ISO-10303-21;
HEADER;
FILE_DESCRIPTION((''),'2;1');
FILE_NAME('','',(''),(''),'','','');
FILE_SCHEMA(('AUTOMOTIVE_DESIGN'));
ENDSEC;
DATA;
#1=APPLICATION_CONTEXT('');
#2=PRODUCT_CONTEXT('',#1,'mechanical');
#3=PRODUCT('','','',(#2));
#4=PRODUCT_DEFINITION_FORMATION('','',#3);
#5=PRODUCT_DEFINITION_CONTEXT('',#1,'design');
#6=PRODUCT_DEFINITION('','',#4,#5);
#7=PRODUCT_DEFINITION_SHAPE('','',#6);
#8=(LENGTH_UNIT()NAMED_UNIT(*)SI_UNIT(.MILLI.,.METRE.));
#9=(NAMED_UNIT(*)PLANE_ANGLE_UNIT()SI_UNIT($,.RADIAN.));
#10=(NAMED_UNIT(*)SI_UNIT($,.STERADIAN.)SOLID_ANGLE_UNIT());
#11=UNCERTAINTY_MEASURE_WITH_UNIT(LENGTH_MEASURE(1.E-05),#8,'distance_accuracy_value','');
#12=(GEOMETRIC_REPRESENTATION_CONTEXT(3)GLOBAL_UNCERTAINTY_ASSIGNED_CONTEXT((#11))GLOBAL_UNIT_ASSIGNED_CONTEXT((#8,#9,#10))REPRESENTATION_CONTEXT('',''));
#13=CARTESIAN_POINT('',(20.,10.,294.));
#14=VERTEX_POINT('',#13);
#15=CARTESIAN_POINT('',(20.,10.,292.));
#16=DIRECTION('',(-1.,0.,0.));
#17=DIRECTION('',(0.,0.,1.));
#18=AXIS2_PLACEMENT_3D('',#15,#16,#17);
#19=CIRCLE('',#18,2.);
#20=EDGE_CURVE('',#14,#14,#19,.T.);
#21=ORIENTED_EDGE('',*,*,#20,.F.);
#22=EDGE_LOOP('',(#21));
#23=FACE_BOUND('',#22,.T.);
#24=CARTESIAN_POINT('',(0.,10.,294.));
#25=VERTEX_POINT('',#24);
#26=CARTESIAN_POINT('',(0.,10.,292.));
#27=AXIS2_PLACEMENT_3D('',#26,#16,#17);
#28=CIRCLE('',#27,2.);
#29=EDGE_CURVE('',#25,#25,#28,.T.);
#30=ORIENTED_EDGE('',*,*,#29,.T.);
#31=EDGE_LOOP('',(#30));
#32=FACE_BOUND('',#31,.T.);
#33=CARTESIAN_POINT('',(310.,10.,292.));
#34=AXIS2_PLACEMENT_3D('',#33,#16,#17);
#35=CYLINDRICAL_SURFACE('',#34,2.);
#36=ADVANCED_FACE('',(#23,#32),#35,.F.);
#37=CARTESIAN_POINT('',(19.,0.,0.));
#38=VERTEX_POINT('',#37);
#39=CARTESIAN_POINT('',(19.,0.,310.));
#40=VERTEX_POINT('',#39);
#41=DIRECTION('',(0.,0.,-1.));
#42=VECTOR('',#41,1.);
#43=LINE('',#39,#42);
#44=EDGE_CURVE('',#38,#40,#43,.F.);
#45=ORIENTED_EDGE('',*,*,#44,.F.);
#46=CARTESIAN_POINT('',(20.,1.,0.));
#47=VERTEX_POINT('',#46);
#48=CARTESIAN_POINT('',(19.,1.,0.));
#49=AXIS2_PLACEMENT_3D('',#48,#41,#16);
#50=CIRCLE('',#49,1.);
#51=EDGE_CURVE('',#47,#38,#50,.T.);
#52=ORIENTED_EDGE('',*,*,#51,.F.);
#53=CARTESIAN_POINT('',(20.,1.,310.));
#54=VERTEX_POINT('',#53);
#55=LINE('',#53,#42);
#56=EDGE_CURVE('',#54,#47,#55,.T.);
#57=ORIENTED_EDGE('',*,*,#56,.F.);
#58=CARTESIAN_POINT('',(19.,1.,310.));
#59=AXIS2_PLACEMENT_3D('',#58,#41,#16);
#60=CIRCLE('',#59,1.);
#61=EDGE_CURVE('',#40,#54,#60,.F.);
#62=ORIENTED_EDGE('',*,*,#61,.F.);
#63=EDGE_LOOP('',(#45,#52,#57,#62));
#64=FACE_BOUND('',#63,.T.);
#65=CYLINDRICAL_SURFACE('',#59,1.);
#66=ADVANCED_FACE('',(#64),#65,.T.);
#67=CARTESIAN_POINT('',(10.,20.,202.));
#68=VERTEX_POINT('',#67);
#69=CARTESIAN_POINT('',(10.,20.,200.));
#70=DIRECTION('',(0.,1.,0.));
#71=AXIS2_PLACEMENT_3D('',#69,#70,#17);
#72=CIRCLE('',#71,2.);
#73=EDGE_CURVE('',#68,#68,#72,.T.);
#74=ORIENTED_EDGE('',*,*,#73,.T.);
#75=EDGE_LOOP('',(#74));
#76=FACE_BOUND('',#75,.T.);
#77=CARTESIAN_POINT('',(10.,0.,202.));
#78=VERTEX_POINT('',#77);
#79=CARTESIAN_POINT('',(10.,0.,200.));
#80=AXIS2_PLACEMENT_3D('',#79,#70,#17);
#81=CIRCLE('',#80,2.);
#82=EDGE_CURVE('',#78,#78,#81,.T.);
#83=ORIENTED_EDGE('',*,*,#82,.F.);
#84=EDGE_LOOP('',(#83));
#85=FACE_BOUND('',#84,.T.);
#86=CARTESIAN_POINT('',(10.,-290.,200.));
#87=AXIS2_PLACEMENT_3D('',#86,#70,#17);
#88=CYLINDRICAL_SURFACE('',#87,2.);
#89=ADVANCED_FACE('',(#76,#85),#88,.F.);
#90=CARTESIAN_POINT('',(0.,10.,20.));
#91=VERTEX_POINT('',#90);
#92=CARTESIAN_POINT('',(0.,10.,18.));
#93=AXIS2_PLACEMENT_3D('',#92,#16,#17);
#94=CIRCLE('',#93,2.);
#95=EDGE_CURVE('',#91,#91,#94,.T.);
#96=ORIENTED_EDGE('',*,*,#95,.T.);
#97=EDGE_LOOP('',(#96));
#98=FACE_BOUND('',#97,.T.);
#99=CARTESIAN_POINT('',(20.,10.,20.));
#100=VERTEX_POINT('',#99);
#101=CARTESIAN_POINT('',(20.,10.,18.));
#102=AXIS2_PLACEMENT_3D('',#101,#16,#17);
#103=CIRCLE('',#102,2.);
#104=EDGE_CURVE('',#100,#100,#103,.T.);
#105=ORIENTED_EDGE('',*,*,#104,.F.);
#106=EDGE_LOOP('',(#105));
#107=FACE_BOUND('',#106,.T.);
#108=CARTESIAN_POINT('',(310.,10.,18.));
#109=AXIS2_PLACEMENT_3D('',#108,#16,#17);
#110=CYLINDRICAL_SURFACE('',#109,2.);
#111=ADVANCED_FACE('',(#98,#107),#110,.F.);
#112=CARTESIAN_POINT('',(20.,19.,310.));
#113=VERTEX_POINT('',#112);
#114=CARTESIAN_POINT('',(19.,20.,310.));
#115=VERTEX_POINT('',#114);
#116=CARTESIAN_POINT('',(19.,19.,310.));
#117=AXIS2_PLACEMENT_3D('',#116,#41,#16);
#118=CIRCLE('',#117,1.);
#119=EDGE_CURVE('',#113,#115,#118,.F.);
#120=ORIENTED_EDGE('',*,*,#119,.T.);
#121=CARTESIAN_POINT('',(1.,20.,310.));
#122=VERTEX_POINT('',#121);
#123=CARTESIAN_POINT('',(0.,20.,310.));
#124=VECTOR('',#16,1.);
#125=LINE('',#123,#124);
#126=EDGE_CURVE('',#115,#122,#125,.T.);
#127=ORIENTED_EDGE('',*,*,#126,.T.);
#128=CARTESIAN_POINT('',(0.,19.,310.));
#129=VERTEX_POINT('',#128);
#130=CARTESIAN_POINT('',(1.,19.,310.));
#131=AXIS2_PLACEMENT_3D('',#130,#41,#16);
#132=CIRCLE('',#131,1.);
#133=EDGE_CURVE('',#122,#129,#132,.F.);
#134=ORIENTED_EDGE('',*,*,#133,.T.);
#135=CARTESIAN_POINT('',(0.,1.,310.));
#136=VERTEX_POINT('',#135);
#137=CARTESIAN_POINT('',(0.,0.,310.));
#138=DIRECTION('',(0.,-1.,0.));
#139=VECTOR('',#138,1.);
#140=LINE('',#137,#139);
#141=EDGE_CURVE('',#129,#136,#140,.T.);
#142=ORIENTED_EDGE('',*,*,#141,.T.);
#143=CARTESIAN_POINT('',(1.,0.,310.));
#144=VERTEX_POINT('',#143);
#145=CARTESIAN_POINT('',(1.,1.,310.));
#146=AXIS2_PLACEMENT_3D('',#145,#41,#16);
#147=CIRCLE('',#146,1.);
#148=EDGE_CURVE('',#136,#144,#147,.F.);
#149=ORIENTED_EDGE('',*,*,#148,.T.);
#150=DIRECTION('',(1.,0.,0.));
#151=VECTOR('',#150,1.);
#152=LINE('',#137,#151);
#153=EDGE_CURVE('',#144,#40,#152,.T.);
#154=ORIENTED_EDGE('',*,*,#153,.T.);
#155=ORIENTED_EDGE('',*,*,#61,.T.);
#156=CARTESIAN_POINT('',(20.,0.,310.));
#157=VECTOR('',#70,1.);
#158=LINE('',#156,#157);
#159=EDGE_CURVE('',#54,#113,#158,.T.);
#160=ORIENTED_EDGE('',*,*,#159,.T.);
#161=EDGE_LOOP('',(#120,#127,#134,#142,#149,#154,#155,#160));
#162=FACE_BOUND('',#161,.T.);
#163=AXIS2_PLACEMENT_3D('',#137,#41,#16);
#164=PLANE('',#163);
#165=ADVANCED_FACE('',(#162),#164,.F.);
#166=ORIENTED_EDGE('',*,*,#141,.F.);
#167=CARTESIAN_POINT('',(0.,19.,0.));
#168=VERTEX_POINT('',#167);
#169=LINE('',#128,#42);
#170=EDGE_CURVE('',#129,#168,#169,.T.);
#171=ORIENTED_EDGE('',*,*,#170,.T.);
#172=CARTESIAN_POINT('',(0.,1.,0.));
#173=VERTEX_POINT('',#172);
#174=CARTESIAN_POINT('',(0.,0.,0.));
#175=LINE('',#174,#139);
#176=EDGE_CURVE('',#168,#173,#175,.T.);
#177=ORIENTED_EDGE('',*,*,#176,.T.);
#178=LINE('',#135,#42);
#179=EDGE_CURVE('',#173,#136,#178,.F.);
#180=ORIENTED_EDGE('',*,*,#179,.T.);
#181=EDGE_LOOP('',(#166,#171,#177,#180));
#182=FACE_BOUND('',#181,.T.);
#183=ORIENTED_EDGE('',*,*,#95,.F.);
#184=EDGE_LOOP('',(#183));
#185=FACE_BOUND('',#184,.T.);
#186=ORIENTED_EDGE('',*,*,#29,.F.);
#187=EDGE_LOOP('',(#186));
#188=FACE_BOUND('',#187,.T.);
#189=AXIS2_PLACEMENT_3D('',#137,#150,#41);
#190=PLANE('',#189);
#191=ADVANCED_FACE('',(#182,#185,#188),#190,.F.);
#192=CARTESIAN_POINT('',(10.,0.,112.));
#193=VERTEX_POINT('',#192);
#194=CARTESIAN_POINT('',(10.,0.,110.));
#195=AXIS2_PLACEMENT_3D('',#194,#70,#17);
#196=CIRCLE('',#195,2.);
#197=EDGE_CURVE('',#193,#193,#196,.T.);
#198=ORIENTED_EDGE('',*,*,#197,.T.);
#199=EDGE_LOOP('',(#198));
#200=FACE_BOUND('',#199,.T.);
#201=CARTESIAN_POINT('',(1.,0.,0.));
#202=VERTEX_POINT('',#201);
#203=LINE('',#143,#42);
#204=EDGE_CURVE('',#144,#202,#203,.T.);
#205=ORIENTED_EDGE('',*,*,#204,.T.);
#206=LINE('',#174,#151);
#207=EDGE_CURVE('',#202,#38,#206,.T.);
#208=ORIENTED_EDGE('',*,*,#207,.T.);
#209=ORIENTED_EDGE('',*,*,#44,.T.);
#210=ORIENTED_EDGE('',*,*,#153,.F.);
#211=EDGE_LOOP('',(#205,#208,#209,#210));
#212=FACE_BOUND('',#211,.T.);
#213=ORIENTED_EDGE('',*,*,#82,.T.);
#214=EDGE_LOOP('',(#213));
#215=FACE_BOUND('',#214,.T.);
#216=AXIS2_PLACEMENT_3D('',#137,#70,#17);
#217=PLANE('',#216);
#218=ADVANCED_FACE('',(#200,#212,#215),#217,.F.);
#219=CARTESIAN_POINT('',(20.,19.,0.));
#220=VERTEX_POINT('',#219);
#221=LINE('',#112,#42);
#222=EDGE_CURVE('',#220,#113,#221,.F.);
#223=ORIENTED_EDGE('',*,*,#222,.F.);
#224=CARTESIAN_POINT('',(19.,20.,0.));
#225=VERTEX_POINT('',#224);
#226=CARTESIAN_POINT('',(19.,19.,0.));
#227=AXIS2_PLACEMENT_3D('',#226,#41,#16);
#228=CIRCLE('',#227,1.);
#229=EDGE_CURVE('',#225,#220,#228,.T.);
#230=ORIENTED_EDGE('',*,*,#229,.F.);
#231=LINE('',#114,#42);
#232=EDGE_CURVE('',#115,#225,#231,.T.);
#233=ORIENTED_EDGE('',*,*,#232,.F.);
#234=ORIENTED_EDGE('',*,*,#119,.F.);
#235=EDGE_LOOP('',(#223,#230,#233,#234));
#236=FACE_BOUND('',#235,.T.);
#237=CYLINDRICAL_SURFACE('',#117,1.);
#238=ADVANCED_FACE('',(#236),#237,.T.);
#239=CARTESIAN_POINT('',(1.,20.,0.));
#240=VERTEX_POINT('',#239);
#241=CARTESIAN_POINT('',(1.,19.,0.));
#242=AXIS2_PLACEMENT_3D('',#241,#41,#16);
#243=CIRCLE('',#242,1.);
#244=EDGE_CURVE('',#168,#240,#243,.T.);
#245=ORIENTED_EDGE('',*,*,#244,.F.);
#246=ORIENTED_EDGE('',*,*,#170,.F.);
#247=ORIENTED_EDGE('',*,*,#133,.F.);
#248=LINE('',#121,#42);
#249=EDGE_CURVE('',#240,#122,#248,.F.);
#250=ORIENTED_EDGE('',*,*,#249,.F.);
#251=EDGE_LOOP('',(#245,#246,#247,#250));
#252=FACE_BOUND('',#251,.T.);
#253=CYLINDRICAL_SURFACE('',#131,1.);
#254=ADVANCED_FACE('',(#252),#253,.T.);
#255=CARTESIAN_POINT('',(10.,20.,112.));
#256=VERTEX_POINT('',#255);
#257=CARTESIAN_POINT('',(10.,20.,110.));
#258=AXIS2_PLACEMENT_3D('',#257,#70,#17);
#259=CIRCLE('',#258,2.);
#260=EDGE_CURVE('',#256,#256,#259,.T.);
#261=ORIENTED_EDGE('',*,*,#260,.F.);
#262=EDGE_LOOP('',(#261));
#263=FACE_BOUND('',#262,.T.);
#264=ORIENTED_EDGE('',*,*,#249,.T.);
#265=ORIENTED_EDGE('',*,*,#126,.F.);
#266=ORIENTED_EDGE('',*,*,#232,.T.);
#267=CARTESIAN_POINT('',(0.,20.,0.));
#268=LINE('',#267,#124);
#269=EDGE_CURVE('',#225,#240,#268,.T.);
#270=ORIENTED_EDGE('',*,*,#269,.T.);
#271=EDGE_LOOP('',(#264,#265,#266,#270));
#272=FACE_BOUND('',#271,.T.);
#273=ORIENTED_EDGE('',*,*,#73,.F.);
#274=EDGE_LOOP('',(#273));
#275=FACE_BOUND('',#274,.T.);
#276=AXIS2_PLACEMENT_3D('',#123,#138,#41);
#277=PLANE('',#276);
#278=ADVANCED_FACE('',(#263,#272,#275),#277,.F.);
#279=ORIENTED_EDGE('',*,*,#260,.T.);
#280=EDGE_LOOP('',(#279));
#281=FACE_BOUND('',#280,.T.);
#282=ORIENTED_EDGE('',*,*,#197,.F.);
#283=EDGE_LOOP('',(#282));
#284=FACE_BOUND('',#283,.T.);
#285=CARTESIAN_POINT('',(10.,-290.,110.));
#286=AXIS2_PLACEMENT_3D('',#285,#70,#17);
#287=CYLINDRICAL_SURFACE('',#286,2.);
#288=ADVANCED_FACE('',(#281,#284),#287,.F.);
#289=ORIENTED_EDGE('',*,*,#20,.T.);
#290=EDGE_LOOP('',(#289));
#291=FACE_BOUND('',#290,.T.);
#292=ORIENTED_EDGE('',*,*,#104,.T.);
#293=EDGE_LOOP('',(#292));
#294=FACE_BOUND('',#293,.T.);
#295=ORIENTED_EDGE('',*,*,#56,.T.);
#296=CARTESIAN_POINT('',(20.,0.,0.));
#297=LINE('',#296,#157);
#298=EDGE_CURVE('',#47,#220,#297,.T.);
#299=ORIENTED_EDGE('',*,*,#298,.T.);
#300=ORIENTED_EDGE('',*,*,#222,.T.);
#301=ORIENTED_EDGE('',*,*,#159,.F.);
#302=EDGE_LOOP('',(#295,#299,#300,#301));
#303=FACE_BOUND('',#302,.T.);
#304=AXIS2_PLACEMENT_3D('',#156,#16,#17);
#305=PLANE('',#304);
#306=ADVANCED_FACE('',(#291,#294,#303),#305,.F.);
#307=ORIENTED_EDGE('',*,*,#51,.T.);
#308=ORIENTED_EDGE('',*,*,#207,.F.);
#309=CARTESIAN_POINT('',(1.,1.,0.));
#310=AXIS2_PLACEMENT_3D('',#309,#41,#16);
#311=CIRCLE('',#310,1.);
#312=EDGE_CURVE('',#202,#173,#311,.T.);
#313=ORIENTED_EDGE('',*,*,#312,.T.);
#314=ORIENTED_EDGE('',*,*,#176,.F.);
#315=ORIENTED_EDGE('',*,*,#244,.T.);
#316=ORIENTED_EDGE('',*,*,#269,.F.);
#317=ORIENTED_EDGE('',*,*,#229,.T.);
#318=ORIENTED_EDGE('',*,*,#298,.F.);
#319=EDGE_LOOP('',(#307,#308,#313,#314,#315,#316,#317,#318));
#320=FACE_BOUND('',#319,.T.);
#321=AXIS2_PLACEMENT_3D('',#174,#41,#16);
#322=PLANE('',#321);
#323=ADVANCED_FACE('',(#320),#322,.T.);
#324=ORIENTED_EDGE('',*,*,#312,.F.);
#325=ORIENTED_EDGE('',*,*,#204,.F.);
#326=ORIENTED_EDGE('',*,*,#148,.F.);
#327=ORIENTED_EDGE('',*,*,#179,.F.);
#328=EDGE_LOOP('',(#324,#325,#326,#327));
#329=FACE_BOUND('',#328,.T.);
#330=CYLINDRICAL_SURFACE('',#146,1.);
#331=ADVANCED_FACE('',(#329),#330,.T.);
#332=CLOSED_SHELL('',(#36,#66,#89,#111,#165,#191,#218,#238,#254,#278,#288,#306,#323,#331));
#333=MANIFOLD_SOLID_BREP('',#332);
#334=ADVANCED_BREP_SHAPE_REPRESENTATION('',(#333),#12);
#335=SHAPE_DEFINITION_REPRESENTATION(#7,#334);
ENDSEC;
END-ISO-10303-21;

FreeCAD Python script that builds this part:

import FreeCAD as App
import Part
import Sketcher
from FreeCAD import Vector


def edges_at(feature, points):
    """Names of the edges that pass closest to the given points."""
    edges = feature.Shape.Edges
    near = lambda p: min(range(len(edges)), key=lambda i: edges[i].distToShape(Part.Vertex(*p))[0])
    return sorted({f"Edge{near(p) + 1}" for p in points})


def add_polygon(sketch, points):
    """Adds a closed chain of lines whose ends are joined by coincident constraints."""
    first, n = sketch.GeometryCount, len(points)
    for a, b in zip(points, points[1:] + points[:1]):
        sketch.addGeometry(Part.LineSegment(App.Vector(*a, 0), App.Vector(*b, 0)), False)
    for i in range(n):
        sketch.addConstraint(Sketcher.Constraint("Coincident", first + i, 2, first + (i + 1) % n, 1))

doc = App.newDocument("Part")
body = doc.addObject("PartDesign::Body", "Body")

sketch1 = doc.addObject("Sketcher::SketchObject", "Sketch")
body.addObject(sketch1)
sketch1.AttachmentSupport = (doc.XY_Plane, [""])
sketch1.MapMode = "FlatFace"
add_polygon(sketch1, [(0, 20), (0, 0), (20, 0), (20, 20)])
sketch1.addConstraint([
    Sketcher.Constraint("Vertical", 0),
    Sketcher.Constraint("Horizontal", 1),
    Sketcher.Constraint("Vertical", 2),
    Sketcher.Constraint("Horizontal", 3),
    Sketcher.Constraint("Coincident", 0, 2, -1, 1),
    Sketcher.Constraint("Equal", 3, 0),
    Sketcher.Constraint("DistanceX", 1, 1, 1, 2, 20.0),
])
pad1 = doc.addObject("PartDesign::Pad", "Pad")
body.addObject(pad1)
pad1.Profile = sketch1
pad1.Length = 310
doc.recompute()

fillet = doc.addObject("PartDesign::Fillet", "Fillet")
body.addObject(fillet)
fillet.Base = (pad1, edges_at(pad1, [
    (0, 20, 155),
    (20, 20, 155),
    (20, 0, 155),
    (0, 0, 155),
]))
fillet.Radius = 1

sketch2 = doc.addObject("Sketcher::SketchObject", "Sketch001")
body.addObject(sketch2)
sketch2.AttachmentSupport = (doc.XZ_Plane, [""])
sketch2.MapMode = "FlatFace"
sketch2.AttachmentOffset = App.Placement(Vector(0, 0, -20), App.Rotation())
sketch2.addGeometry([
    Part.Circle(Vector(10, 110, 0), Vector(0, 0, 1), 2),
    Part.Circle(Vector(10, 200, 0), Vector(0, 0, 1), 2),
], False)
sketch2.addConstraint([
    Sketcher.Constraint("Equal", 0, 1),
    Sketcher.Constraint("Vertical", 0, 3, 1, 3),
    Sketcher.Constraint("Diameter", 0, 4.0),
    Sketcher.Constraint("DistanceX", -1, 1, 0, 3, 10.0),
    Sketcher.Constraint("DistanceY", -1, 1, 0, 3, 110.0),
    Sketcher.Constraint("DistanceY", -1, 1, 1, 3, 200.0),
])
pocket1 = doc.addObject("PartDesign::Pocket", "Pocket")
body.addObject(pocket1)
pocket1.Profile = sketch2
pocket1.Length = 310
pocket1.Reversed = True

sketch3 = doc.addObject("Sketcher::SketchObject", "Sketch002")
body.addObject(sketch3)
sketch3.AttachmentSupport = (doc.YZ_Plane, [""])
sketch3.MapMode = "FlatFace"
sketch3.addGeometry([
    Part.Circle(Vector(10, 18, 0), Vector(0, 0, 1), 2),
    Part.Circle(Vector(10, 292, 0), Vector(0, 0, 1), 2),
], False)
sketch3.addConstraint([
    Sketcher.Constraint("Equal", 0, 1),
    Sketcher.Constraint("Vertical", 0, 3, 1, 3),
    Sketcher.Constraint("Diameter", 0, 4.0),
    Sketcher.Constraint("DistanceX", -1, 1, 0, 3, 10.0),
    Sketcher.Constraint("DistanceY", -1, 1, 0, 3, 18.0),
    Sketcher.Constraint("DistanceY", -1, 1, 1, 3, 292.0),
])
pocket2 = doc.addObject("PartDesign::Pocket", "Pocket001")
body.addObject(pocket2)
pocket2.Profile = sketch3
pocket2.Length = 310
pocket2.Reversed = True

doc.recompute()
